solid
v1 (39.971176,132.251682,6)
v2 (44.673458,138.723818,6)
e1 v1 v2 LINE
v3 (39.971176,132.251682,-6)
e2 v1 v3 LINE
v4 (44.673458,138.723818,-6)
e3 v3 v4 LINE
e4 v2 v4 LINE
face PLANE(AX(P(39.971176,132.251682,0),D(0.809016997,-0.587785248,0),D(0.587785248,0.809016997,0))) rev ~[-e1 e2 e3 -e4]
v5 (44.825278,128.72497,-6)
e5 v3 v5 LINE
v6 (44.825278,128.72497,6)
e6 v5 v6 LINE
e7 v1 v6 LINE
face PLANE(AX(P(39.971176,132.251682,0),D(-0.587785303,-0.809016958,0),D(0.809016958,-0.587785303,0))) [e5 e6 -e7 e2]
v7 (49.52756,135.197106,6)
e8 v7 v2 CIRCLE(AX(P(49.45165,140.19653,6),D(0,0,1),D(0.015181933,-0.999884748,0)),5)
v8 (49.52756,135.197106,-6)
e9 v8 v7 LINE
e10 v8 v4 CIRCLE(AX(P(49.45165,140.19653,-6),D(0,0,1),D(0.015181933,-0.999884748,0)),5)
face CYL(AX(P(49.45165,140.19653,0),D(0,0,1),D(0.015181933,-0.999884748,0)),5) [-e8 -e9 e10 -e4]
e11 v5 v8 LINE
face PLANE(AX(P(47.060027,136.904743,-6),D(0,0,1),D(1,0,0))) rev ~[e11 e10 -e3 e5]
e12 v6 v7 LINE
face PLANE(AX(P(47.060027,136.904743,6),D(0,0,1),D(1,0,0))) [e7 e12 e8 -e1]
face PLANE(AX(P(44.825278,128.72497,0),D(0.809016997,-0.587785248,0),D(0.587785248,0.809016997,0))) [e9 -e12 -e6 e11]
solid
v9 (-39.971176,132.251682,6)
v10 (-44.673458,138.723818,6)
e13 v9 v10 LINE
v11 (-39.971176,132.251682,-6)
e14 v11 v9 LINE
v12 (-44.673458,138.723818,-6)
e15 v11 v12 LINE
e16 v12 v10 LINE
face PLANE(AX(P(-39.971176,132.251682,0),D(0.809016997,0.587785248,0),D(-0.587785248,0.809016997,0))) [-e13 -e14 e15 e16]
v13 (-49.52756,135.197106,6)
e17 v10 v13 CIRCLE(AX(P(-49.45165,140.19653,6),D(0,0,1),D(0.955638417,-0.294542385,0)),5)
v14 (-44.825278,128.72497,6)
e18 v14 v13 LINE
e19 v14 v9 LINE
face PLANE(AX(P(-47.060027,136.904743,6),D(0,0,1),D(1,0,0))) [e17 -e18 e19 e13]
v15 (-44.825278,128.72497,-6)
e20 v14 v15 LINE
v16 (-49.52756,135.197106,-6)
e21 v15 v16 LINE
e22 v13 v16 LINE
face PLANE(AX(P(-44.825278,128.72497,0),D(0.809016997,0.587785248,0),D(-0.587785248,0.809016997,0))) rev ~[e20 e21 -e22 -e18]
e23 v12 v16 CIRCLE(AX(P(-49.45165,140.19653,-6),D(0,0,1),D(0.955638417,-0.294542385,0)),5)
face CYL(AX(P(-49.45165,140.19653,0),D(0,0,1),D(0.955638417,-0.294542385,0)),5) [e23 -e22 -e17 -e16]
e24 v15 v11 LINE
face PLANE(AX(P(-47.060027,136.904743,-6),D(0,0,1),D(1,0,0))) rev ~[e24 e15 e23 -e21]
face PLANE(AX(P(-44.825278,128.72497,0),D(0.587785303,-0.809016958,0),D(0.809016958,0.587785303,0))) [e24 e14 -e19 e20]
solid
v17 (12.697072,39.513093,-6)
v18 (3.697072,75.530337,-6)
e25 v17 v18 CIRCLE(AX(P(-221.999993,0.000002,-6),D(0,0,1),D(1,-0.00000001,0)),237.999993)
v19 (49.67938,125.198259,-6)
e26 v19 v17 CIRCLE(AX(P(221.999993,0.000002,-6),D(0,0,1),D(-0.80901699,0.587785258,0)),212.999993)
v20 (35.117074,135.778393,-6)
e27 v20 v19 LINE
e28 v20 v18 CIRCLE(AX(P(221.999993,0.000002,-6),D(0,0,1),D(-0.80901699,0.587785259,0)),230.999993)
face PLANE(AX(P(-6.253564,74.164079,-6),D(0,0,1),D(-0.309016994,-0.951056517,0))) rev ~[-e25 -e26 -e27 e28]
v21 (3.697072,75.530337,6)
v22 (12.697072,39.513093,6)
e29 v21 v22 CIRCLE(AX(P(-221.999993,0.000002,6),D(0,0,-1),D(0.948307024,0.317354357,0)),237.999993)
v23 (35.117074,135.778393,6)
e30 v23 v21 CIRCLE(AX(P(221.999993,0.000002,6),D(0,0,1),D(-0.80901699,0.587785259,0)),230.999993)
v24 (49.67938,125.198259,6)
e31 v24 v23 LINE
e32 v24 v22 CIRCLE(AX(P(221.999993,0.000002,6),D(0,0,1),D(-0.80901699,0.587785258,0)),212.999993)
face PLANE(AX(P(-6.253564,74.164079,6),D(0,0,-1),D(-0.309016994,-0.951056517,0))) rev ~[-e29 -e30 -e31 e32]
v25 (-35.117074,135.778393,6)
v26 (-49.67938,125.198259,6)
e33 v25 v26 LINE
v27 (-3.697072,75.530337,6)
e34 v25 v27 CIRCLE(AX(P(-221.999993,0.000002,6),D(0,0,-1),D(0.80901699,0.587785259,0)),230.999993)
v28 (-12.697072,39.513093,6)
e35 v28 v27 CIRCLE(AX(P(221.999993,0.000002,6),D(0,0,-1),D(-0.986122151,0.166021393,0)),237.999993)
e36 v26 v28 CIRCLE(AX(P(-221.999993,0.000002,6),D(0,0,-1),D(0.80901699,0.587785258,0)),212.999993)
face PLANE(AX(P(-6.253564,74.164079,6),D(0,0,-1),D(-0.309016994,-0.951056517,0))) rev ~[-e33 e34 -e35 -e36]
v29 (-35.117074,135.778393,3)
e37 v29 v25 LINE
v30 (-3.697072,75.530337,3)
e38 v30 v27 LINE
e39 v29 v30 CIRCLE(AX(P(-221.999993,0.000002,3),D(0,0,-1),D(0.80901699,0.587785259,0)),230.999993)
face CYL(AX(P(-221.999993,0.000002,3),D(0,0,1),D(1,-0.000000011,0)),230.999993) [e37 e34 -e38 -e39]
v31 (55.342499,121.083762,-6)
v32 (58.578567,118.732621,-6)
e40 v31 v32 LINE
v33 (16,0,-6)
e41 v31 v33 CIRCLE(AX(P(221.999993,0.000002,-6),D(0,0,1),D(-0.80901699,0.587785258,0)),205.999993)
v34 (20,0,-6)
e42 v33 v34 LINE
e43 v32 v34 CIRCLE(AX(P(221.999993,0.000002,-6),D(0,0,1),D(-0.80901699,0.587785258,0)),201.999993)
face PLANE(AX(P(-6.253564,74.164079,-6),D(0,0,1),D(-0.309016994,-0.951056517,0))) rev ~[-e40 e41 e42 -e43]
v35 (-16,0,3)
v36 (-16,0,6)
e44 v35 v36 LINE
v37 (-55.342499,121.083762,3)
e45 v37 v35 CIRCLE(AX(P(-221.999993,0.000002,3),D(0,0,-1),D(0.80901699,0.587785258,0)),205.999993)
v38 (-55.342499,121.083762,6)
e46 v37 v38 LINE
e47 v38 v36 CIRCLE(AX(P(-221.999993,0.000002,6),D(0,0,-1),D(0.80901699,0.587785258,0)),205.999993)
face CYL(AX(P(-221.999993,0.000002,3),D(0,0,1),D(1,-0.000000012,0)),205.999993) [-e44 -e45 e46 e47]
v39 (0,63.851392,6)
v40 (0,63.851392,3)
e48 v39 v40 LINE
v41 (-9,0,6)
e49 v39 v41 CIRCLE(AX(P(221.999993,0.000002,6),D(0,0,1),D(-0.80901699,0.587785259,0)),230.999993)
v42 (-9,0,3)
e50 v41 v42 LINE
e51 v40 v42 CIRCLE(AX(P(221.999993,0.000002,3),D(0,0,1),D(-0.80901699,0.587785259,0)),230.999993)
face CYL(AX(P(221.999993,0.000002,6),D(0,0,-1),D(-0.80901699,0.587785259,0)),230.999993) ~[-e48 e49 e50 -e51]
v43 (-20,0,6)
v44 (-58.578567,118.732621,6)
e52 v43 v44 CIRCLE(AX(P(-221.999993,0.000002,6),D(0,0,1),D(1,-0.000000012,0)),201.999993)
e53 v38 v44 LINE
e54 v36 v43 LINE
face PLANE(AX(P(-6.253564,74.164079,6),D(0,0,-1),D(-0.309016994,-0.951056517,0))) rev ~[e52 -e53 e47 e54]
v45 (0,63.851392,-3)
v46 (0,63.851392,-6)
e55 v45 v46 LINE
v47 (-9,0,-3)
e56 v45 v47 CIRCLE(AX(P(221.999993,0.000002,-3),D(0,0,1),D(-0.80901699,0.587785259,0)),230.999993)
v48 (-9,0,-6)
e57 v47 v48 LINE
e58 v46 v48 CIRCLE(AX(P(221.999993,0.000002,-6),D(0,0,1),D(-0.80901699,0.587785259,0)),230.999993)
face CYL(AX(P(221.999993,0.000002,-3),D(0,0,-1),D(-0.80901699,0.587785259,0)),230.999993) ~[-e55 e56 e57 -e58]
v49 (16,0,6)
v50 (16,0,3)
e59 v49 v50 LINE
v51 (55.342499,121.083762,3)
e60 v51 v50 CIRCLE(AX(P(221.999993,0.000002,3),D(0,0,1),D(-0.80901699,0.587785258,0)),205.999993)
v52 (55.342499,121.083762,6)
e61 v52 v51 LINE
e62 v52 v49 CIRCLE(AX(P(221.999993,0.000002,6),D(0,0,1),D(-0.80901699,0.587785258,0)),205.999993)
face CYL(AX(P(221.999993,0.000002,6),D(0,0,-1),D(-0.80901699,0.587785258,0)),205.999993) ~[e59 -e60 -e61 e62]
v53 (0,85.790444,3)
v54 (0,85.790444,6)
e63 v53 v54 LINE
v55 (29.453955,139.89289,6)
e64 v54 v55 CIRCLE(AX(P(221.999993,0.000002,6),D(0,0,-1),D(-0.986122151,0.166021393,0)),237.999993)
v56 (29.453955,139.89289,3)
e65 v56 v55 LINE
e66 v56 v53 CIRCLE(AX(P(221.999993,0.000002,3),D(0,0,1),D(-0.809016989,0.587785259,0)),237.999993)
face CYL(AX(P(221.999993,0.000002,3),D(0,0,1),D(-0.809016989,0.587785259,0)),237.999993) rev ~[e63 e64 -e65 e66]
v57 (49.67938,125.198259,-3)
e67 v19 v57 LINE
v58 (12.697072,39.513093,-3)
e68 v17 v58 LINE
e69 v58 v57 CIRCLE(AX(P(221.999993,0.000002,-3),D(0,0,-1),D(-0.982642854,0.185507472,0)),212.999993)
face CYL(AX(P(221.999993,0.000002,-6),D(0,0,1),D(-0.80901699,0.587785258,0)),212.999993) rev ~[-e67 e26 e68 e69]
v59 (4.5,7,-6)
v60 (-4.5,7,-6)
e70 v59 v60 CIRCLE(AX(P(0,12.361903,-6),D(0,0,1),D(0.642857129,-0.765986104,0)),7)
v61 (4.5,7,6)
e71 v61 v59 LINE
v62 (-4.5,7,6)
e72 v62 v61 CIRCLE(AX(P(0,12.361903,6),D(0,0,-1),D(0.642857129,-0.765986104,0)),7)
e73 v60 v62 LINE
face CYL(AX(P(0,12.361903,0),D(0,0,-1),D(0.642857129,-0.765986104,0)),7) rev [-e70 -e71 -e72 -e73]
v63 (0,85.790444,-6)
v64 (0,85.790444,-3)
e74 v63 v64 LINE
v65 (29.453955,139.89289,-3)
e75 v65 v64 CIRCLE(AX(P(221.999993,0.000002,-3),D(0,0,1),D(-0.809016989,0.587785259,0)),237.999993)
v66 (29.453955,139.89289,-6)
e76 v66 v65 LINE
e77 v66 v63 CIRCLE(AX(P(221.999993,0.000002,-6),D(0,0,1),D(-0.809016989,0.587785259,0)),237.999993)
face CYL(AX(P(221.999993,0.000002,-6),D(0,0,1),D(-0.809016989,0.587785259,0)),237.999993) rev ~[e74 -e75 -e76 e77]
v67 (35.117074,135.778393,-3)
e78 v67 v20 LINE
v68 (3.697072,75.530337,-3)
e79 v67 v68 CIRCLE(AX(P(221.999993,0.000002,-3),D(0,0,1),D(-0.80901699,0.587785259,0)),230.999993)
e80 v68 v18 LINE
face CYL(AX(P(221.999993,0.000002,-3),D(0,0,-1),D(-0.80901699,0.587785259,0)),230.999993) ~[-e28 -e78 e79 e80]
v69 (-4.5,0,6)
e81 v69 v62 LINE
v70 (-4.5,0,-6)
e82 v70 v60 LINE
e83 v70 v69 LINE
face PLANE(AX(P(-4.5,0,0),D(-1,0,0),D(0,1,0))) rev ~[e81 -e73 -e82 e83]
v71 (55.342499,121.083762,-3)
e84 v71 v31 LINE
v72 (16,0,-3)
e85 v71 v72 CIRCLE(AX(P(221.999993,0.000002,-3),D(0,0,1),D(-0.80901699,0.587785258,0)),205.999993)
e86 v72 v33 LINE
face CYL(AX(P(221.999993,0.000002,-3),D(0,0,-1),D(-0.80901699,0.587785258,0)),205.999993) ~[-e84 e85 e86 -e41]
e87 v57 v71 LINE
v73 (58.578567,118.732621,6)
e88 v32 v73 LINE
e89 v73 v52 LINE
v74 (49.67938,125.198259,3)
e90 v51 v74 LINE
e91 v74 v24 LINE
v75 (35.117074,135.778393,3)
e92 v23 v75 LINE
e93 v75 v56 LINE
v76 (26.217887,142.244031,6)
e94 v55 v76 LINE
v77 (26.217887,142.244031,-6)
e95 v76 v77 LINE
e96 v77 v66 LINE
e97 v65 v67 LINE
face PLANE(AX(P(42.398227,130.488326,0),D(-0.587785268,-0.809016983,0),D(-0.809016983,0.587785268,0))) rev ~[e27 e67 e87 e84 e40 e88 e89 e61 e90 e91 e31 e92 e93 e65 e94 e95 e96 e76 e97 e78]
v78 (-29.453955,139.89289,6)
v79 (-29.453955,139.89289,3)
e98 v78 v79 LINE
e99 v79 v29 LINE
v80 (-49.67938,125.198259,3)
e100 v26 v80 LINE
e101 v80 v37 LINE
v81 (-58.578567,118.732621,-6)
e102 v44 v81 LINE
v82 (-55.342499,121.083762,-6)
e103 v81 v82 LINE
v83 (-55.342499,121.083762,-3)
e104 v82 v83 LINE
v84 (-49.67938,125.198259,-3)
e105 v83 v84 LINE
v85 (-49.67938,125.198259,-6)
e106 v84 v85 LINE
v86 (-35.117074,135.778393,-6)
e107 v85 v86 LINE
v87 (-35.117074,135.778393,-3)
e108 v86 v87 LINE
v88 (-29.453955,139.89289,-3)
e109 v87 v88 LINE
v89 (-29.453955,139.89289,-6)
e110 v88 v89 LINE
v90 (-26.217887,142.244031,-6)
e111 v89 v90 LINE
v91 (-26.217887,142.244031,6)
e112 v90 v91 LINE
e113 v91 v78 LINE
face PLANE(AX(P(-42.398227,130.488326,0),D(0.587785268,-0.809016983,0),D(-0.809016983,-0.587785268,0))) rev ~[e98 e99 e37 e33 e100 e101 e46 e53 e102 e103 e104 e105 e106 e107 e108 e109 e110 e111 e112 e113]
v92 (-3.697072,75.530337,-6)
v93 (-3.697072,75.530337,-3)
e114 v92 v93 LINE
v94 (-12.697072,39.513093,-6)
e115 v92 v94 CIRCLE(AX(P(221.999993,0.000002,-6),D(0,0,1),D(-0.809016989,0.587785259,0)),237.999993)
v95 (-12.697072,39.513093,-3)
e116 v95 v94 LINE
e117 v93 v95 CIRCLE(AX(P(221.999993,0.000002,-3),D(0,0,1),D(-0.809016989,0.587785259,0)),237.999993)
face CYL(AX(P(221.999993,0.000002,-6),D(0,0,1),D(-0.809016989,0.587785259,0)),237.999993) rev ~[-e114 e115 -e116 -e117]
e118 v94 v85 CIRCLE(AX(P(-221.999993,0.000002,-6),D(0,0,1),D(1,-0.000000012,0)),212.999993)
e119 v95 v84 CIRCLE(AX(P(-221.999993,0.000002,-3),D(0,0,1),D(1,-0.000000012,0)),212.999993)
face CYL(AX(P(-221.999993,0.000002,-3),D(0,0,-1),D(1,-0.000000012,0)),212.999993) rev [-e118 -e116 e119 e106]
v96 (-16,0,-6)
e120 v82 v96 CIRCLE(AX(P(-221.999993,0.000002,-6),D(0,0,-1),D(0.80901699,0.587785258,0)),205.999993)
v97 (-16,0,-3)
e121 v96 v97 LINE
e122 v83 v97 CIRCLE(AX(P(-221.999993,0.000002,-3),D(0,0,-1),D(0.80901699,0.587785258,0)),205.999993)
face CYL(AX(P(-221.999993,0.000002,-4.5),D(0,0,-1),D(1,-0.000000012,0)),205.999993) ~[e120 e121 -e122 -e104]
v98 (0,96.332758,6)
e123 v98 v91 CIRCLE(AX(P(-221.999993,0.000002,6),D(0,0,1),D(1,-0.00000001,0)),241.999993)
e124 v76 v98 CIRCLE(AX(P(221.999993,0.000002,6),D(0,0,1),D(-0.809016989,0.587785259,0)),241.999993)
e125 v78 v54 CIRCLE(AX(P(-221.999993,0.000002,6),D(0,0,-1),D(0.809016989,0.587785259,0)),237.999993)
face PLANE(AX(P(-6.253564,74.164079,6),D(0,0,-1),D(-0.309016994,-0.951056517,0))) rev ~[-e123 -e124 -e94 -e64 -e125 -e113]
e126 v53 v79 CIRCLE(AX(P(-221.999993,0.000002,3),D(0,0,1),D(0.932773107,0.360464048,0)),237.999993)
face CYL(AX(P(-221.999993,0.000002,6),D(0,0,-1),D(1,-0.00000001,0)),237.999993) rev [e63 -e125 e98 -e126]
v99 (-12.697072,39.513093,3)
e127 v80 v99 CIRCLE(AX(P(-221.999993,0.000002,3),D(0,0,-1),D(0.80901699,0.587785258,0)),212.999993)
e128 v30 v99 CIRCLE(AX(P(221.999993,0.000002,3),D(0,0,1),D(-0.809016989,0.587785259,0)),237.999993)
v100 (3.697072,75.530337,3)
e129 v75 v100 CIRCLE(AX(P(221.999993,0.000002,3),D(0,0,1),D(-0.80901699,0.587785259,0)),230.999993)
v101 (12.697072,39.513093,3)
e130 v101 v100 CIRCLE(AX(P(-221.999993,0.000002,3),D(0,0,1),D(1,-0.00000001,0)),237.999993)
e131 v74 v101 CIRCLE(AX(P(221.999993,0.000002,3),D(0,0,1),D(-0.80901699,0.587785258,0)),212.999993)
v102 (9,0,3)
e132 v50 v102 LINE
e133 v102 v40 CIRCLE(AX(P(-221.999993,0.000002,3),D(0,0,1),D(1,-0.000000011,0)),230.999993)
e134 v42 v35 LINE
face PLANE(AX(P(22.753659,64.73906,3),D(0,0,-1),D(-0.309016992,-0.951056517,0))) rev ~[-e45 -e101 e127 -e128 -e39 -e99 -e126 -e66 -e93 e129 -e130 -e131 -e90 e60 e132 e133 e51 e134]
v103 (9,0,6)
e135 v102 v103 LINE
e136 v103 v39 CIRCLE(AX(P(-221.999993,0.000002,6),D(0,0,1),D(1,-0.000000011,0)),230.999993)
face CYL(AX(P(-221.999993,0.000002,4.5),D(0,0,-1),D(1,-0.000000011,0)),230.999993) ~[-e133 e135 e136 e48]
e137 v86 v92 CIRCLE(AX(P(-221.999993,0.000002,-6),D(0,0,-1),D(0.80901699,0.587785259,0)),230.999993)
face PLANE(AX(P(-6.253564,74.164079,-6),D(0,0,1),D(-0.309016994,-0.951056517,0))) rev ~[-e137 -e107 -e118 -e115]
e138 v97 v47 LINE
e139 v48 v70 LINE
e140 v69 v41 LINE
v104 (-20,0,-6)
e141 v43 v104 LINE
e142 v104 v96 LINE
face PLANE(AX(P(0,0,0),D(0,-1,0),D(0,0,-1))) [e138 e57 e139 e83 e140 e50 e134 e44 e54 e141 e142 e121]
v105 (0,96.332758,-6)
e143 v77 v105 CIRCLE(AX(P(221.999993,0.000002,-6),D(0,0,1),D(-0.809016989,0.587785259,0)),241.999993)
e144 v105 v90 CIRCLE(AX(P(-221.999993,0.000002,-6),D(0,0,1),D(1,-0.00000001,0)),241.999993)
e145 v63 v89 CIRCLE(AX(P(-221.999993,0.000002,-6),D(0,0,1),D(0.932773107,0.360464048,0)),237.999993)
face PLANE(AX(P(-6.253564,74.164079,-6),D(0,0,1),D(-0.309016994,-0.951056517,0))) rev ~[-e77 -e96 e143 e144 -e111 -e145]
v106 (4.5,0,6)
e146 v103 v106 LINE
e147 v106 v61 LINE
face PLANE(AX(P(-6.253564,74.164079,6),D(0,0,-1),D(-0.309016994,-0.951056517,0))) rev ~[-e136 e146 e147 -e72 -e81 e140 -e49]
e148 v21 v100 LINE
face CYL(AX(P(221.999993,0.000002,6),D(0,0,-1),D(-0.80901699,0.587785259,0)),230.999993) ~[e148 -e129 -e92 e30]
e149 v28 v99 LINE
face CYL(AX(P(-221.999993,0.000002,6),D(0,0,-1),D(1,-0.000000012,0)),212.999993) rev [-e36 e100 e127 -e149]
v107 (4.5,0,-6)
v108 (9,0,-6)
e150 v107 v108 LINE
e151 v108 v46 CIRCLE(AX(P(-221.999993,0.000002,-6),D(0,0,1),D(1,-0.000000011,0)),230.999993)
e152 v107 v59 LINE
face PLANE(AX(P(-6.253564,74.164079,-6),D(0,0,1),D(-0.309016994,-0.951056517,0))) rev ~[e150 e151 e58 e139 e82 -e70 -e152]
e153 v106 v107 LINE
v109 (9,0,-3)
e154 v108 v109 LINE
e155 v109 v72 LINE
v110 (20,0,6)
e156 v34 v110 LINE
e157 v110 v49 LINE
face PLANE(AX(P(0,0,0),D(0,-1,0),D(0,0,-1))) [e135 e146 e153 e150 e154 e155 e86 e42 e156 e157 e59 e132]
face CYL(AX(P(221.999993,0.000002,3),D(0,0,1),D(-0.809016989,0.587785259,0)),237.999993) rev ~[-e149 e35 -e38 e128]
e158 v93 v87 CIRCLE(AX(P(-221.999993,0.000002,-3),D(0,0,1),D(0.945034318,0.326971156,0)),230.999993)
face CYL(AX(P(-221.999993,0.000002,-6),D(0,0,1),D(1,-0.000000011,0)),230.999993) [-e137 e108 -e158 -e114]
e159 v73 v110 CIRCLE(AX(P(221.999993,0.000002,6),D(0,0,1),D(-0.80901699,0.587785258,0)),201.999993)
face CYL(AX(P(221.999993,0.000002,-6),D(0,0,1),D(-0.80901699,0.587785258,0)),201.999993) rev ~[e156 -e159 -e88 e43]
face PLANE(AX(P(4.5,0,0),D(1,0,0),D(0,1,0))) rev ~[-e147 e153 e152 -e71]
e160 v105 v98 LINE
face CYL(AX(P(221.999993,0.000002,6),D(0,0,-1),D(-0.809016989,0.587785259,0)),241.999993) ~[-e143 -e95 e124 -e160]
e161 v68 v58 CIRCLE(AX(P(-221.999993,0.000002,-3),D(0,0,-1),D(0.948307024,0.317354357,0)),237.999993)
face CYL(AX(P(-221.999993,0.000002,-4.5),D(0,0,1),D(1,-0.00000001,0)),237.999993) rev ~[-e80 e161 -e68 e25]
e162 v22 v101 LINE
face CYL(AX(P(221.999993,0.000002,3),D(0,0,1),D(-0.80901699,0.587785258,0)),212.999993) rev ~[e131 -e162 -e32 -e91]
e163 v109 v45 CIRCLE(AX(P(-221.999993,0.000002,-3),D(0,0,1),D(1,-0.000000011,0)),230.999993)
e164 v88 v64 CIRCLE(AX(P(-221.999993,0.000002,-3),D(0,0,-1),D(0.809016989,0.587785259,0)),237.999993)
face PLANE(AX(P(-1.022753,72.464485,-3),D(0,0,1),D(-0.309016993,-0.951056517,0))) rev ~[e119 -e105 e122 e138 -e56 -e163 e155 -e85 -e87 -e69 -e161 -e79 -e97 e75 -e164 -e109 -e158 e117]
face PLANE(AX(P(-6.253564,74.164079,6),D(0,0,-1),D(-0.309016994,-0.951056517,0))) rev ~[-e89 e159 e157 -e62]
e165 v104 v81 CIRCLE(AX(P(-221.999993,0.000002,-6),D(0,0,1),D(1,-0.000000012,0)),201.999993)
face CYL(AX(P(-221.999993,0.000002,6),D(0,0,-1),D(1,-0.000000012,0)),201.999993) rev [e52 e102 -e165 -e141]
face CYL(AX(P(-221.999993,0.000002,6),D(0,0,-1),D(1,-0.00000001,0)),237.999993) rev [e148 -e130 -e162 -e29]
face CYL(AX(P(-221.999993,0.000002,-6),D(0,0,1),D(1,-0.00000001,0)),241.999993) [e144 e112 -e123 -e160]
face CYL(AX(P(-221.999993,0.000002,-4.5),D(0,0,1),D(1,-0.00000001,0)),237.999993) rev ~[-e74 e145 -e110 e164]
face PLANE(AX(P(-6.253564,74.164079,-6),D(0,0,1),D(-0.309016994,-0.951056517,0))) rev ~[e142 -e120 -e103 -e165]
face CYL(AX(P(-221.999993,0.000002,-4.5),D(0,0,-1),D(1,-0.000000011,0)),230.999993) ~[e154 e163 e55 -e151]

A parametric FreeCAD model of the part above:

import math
import FreeCAD as App
import Part
import Sketcher
from FreeCAD import Vector
Q = App.Units.Quantity


def add_polygon(sketch, points):
    """Adds a closed chain of lines whose ends are joined by coincident constraints."""
    first, n = sketch.GeometryCount, len(points)
    for a, b in zip(points, points[1:] + points[:1]):
        sketch.addGeometry(Part.LineSegment(App.Vector(*a, 0), App.Vector(*b, 0)), False)
    for i in range(n):
        sketch.addConstraint(Sketcher.Constraint("Coincident", first + i, 2, first + (i + 1) % n, 1))

doc = App.newDocument("Part")
body = doc.addObject("PartDesign::Body", "Body")

# Sketch on XZ plane
sketch1 = body.newObject("Sketcher::SketchObject", "Sketch")
sketch1.AttachmentSupport = (doc.getObject("XZ_Plane"), [""])
sketch1.MapMode = "FlatFace"
add_polygon(sketch1, [(-20, 6), (-20, -6), (-16, -6), (-16, -3), (-9, -3), (-9, -6), (9, -6), (9, -3), (16, -3), (16, -6), (20, -6), (20, 6), (16, 6), (16, 3), (9, 3), (9, 6), (-9, 6), (-9, 3), (-16, 3), (-16, 6)])  # lines 0-19
sketch1.addConstraint([
    Sketcher.Constraint("Vertical", 0),
    Sketcher.Constraint("Horizontal", 1),
    Sketcher.Constraint("Vertical", 2),
    Sketcher.Constraint("Horizontal", 3),
    Sketcher.Constraint("Vertical", 4),
    Sketcher.Constraint("Horizontal", 5),
    Sketcher.Constraint("Vertical", 6),
    Sketcher.Constraint("Horizontal", 7),
    Sketcher.Constraint("Vertical", 8),
    Sketcher.Constraint("Horizontal", 9),
    Sketcher.Constraint("Vertical", 10),
    Sketcher.Constraint("Horizontal", 11),
    Sketcher.Constraint("Vertical", 12),
    Sketcher.Constraint("Horizontal", 13),
    Sketcher.Constraint("Vertical", 14),
    Sketcher.Constraint("Horizontal", 15),
    Sketcher.Constraint("Vertical", 16),
    Sketcher.Constraint("Horizontal", 17),
    Sketcher.Constraint("Vertical", 18),
    Sketcher.Constraint("Horizontal", 19),
    Sketcher.Constraint("Symmetric", 0, 2, 10, 2, -1, 1),
    Sketcher.Constraint("Symmetric", 2, 2, 12, 2, -1, 1),
    Sketcher.Constraint("Symmetric", 4, 2, 14, 2, -1, 1),
    Sketcher.Constraint("Symmetric", 6, 2, 16, 2, -1, 1),
    Sketcher.Constraint("Symmetric", 8, 2, 18, 2, -1, 1),
    Sketcher.Constraint("Symmetric", 3, 2, 6, 2, -2),
    Sketcher.Constraint("Symmetric", 1, 2, 8, 2, -2),
    Sketcher.Constraint("Horizontal", 1, 2, 4, 2),
    Sketcher.Constraint("DistanceX", 1, 1, 1, 2, Q("4 mm")),
    Sketcher.Constraint("DistanceX", 3, 1, 3, 2, Q("7 mm")),
    Sketcher.Constraint("DistanceX", 5, 1, 5, 2, Q("18 mm")),
    Sketcher.Constraint("DistanceY", 0, 2, 0, 1, Q("12 mm")),
    Sketcher.Constraint("DistanceY", 2, 1, 2, 2, Q("3 mm")),
])

# Sketch on XY plane
sketch2 = body.newObject("Sketcher::SketchObject", "Sketch001")
sketch2.AttachmentSupport = (doc.getObject("XY_Plane"), [""])
sketch2.MapMode = "FlatFace"
sketch2.addGeometry(Part.ArcOfCircle(Part.Circle(Vector(-221.999993, 0.000002, 0), Vector(0, 0, 1), 221.999993), math.radians(-0.000001), math.radians(36)), False)
sketch2.addConstraint([
    Sketcher.Constraint("Coincident", 0, 1, -1, 1),
    Sketcher.Constraint("Radius", 0, Q("221.999993 mm")),
    Sketcher.Constraint("DistanceX", 0, 2, -1, 1, Q("42.398227 mm")),
    Sketcher.Constraint("DistanceY", -1, 1, 0, 2, Q("130.488326 mm")),
])
doc.recompute()

additivepipe = body.newObject("PartDesign::AdditivePipe", "AdditivePipe")
additivepipe.Profile = sketch1
additivepipe.Spine = (sketch2, ["Edge1"])

# Sketch on XZ plane
sketch3 = body.newObject("Sketcher::SketchObject", "Sketch002")
sketch3.AttachmentSupport = (doc.getObject("XZ_Plane"), [""])
sketch3.MapMode = "FlatFace"
add_polygon(sketch3, [(-20, 6), (-20, -6), (-16, -6), (-16, -3), (-9, -3), (-9, -6), (9, -6), (9, -3), (16, -3), (16, -6), (20, -6), (20, 6), (16, 6), (16, 3), (9, 3), (9, 6), (-9, 6), (-9, 3), (-16, 3), (-16, 6)])  # lines 0-19
sketch3.addConstraint([
    Sketcher.Constraint("Vertical", 0),
    Sketcher.Constraint("Horizontal", 1),
    Sketcher.Constraint("Vertical", 2),
    Sketcher.Constraint("Horizontal", 3),
    Sketcher.Constraint("Vertical", 4),
    Sketcher.Constraint("Horizontal", 5),
    Sketcher.Constraint("Vertical", 6),
    Sketcher.Constraint("Horizontal", 7),
    Sketcher.Constraint("Vertical", 8),
    Sketcher.Constraint("Horizontal", 9),
    Sketcher.Constraint("Vertical", 10),
    Sketcher.Constraint("Horizontal", 11),
    Sketcher.Constraint("Vertical", 12),
    Sketcher.Constraint("Horizontal", 13),
    Sketcher.Constraint("Vertical", 14),
    Sketcher.Constraint("Horizontal", 15),
    Sketcher.Constraint("Vertical", 16),
    Sketcher.Constraint("Horizontal", 17),
    Sketcher.Constraint("Vertical", 18),
    Sketcher.Constraint("Horizontal", 19),
    Sketcher.Constraint("Symmetric", 0, 2, 10, 2, -1, 1),
    Sketcher.Constraint("Symmetric", 2, 2, 12, 2, -1, 1),
    Sketcher.Constraint("Symmetric", 4, 2, 14, 2, -1, 1),
    Sketcher.Constraint("Symmetric", 6, 2, 16, 2, -1, 1),
    Sketcher.Constraint("Symmetric", 8, 2, 18, 2, -1, 1),
    Sketcher.Constraint("Symmetric", 3, 2, 6, 2, -2),
    Sketcher.Constraint("Symmetric", 1, 2, 8, 2, -2),
    Sketcher.Constraint("Horizontal", 1, 2, 4, 2),
    Sketcher.Constraint("DistanceX", 1, 1, 1, 2, Q("4 mm")),
    Sketcher.Constraint("DistanceX", 3, 1, 3, 2, Q("7 mm")),
    Sketcher.Constraint("DistanceX", 5, 1, 5, 2, Q("18 mm")),
    Sketcher.Constraint("DistanceY", 0, 2, 0, 1, Q("12 mm")),
    Sketcher.Constraint("DistanceY", 2, 1, 2, 2, Q("3 mm")),
])

# Sketch on XY plane
sketch4 = body.newObject("Sketcher::SketchObject", "Sketch003")
sketch4.AttachmentSupport = (doc.getObject("XY_Plane"), [""])
sketch4.MapMode = "FlatFace"
sketch4.addGeometry(Part.ArcOfCircle(Part.Circle(Vector(221.999993, 0.000002, 0), Vector(0, 0, 1), 221.999993), math.radians(144), math.radians(180.000001)), False)
sketch4.addConstraint([
    Sketcher.Constraint("Coincident", 0, 2, -1, 1),
    Sketcher.Constraint("Radius", 0, Q("221.999993 mm")),
    Sketcher.Constraint("DistanceX", -1, 1, 0, 1, Q("42.398227 mm")),
    Sketcher.Constraint("DistanceY", -1, 1, 0, 1, Q("130.488326 mm")),
])
doc.recompute()

additivepipe2 = body.newObject("PartDesign::AdditivePipe", "AdditivePipe001")
additivepipe2.Profile = sketch3
additivepipe2.Spine = (sketch4, ["Edge1"])

# Sketch on XZ plane
sketch5 = body.newObject("Sketcher::SketchObject", "Sketch004")
sketch5.AttachmentSupport = (doc.getObject("XZ_Plane"), [""])
sketch5.MapMode = "FlatFace"
add_polygon(sketch5, [(-16, 6), (-16, 3), (-9, 3), (-9, 6)])  # lines 0-3
sketch5.addConstraint([
    Sketcher.Constraint("Vertical", 0),
    Sketcher.Constraint("Horizontal", 1),
    Sketcher.Constraint("Vertical", 2),
    Sketcher.Constraint("Horizontal", 3),
    Sketcher.Constraint("DistanceX", 1, 1, 1, 2, Q("7 mm")),
    Sketcher.Constraint("DistanceY", 0, 2, 0, 1, Q("3 mm")),
    Sketcher.Constraint("DistanceX", 0, 2, -1, 1, Q("16 mm")),
    Sketcher.Constraint("DistanceY", -1, 1, 0, 2, Q("3 mm")),
])

# Sketch on XY plane
sketch6 = body.newObject("Sketcher::SketchObject", "Sketch005")
sketch6.AttachmentSupport = (doc.getObject("XY_Plane"), [""])
sketch6.MapMode = "FlatFace"
sketch6.addGeometry(Part.ArcOfCircle(Part.Circle(Vector(-221.999993, 0.000002, 0), Vector(0, 0, 1), 221.999993), math.radians(-0.000001), math.radians(36)), False)
sketch6.addConstraint([
    Sketcher.Constraint("Coincident", 0, 1, -1, 1),
    Sketcher.Constraint("Radius", 0, Q("221.999993 mm")),
    Sketcher.Constraint("DistanceX", 0, 2, -1, 1, Q("42.398227 mm")),
    Sketcher.Constraint("DistanceY", -1, 1, 0, 2, Q("130.488326 mm")),
])
doc.recompute()

subtractivepipe = body.newObject("PartDesign::SubtractivePipe", "SubtractivePipe")
subtractivepipe.Profile = sketch5
subtractivepipe.Spine = (sketch6, ["Edge1"])

# Sketch on XZ plane
sketch7 = body.newObject("Sketcher::SketchObject", "Sketch006")
sketch7.AttachmentSupport = (doc.getObject("XZ_Plane"), [""])
sketch7.MapMode = "FlatFace"
add_polygon(sketch7, [(-16, 6), (-16, 3), (-9, 3), (-9, 6)])  # lines 0-3
sketch7.addConstraint([
    Sketcher.Constraint("Vertical", 0),
    Sketcher.Constraint("Horizontal", 1),
    Sketcher.Constraint("Vertical", 2),
    Sketcher.Constraint("Horizontal", 3),
    Sketcher.Constraint("DistanceX", 1, 1, 1, 2, Q("7 mm")),
    Sketcher.Constraint("DistanceY", 0, 2, 0, 1, Q("3 mm")),
    Sketcher.Constraint("DistanceX", 0, 2, -1, 1, Q("16 mm")),
    Sketcher.Constraint("DistanceY", -1, 1, 0, 2, Q("3 mm")),
])

# Sketch on XY plane
sketch8 = body.newObject("Sketcher::SketchObject", "Sketch007")
sketch8.AttachmentSupport = (doc.getObject("XY_Plane"), [""])
sketch8.MapMode = "FlatFace"
sketch8.addGeometry(Part.ArcOfCircle(Part.Circle(Vector(221.999993, 0.000002, 0), Vector(0, 0, 1), 221.999993), math.radians(144), math.radians(180.000001)), False)
sketch8.addConstraint([
    Sketcher.Constraint("Coincident", 0, 2, -1, 1),
    Sketcher.Constraint("Radius", 0, Q("221.999993 mm")),
    Sketcher.Constraint("DistanceX", -1, 1, 0, 1, Q("42.398227 mm")),
    Sketcher.Constraint("DistanceY", -1, 1, 0, 1, Q("130.488326 mm")),
])
doc.recompute()

subtractivepipe2 = body.newObject("PartDesign::SubtractivePipe", "SubtractivePipe001")
subtractivepipe2.Profile = sketch7
subtractivepipe2.Spine = (sketch8, ["Edge1"])

# Sketch on XZ plane
sketch9 = body.newObject("Sketcher::SketchObject", "Sketch008")
sketch9.AttachmentSupport = (doc.getObject("XZ_Plane"), [""])
sketch9.MapMode = "FlatFace"
add_polygon(sketch9, [(9, 6), (9, 3), (16, 3), (16, 6)])  # lines 0-3
sketch9.addConstraint([
    Sketcher.Constraint("Vertical", 0),
    Sketcher.Constraint("Horizontal", 1),
    Sketcher.Constraint("Vertical", 2),
    Sketcher.Constraint("Horizontal", 3),
    Sketcher.Constraint("DistanceX", 1, 1, 1, 2, Q("7 mm")),
    Sketcher.Constraint("DistanceY", 0, 2, 0, 1, Q("3 mm")),
    Sketcher.Constraint("DistanceX", -1, 1, 0, 2, Q("9 mm")),
    Sketcher.Constraint("DistanceY", -1, 1, 0, 2, Q("3 mm")),
])

# Sketch on XY plane
sketch10 = body.newObject("Sketcher::SketchObject", "Sketch009")
sketch10.AttachmentSupport = (doc.getObject("XY_Plane"), [""])
sketch10.MapMode = "FlatFace"
sketch10.addGeometry(Part.ArcOfCircle(Part.Circle(Vector(-221.999993, 0.000002, 0), Vector(0, 0, 1), 221.999993), math.radians(-0.000001), math.radians(36)), False)
sketch10.addConstraint([
    Sketcher.Constraint("Coincident", 0, 1, -1, 1),
    Sketcher.Constraint("Radius", 0, Q("221.999993 mm")),
    Sketcher.Constraint("DistanceX", 0, 2, -1, 1, Q("42.398227 mm")),
    Sketcher.Constraint("DistanceY", -1, 1, 0, 2, Q("130.488326 mm")),
])
doc.recompute()

subtractivepipe3 = body.newObject("PartDesign::SubtractivePipe", "SubtractivePipe002")
subtractivepipe3.Profile = sketch9
subtractivepipe3.Spine = (sketch10, ["Edge1"])

# Sketch on XZ plane
sketch11 = body.newObject("Sketcher::SketchObject", "Sketch010")
sketch11.AttachmentSupport = (doc.getObject("XZ_Plane"), [""])
sketch11.MapMode = "FlatFace"
add_polygon(sketch11, [(9, 6), (9, 3), (16, 3), (16, 6)])  # lines 0-3
sketch11.addConstraint([
    Sketcher.Constraint("Vertical", 0),
    Sketcher.Constraint("Horizontal", 1),
    Sketcher.Constraint("Vertical", 2),
    Sketcher.Constraint("Horizontal", 3),
    Sketcher.Constraint("DistanceX", 1, 1, 1, 2, Q("7 mm")),
    Sketcher.Constraint("DistanceY", 0, 2, 0, 1, Q("3 mm")),
    Sketcher.Constraint("DistanceX", -1, 1, 0, 2, Q("9 mm")),
    Sketcher.Constraint("DistanceY", -1, 1, 0, 2, Q("3 mm")),
])

# Sketch on XY plane
sketch12 = body.newObject("Sketcher::SketchObject", "Sketch011")
sketch12.AttachmentSupport = (doc.getObject("XY_Plane"), [""])
sketch12.MapMode = "FlatFace"
sketch12.addGeometry(Part.ArcOfCircle(Part.Circle(Vector(221.999993, 0.000002, 0), Vector(0, 0, 1), 221.999993), math.radians(144), math.radians(180.000001)), False)
sketch12.addConstraint([
    Sketcher.Constraint("Coincident", 0, 2, -1, 1),
    Sketcher.Constraint("Radius", 0, Q("221.999993 mm")),
    Sketcher.Constraint("DistanceX", -1, 1, 0, 1, Q("42.398227 mm")),
    Sketcher.Constraint("DistanceY", -1, 1, 0, 1, Q("130.488326 mm")),
])
doc.recompute()

subtractivepipe4 = body.newObject("PartDesign::SubtractivePipe", "SubtractivePipe003")
subtractivepipe4.Profile = sketch11
subtractivepipe4.Spine = (sketch12, ["Edge1"])

# Sketch on XZ plane
sketch13 = body.newObject("Sketcher::SketchObject", "Sketch012")
sketch13.AttachmentSupport = (doc.getObject("XZ_Plane"), [""])
sketch13.MapMode = "FlatFace"
add_polygon(sketch13, [(-16, -3), (-16, -6), (-9, -6), (-9, -3)])  # lines 0-3
sketch13.addConstraint([
    Sketcher.Constraint("Vertical", 0),
    Sketcher.Constraint("Horizontal", 1),
    Sketcher.Constraint("Vertical", 2),
    Sketcher.Constraint("Horizontal", 3),
    Sketcher.Constraint("DistanceX", 1, 1, 1, 2, Q("7 mm")),
    Sketcher.Constraint("DistanceY", 0, 2, 0, 1, Q("3 mm")),
    Sketcher.Constraint("DistanceX", 0, 2, -1, 1, Q("16 mm")),
    Sketcher.Constraint("DistanceY", 0, 2, -1, 1, Q("6 mm")),
])

# Sketch on XY plane
sketch14 = body.newObject("Sketcher::SketchObject", "Sketch013")
sketch14.AttachmentSupport = (doc.getObject("XY_Plane"), [""])
sketch14.MapMode = "FlatFace"
sketch14.addGeometry(Part.ArcOfCircle(Part.Circle(Vector(-221.999993, 0.000002, 0), Vector(0, 0, 1), 221.999993), math.radians(-0.000001), math.radians(36)), False)
sketch14.addConstraint([
    Sketcher.Constraint("Coincident", 0, 1, -1, 1),
    Sketcher.Constraint("Radius", 0, Q("221.999993 mm")),
    Sketcher.Constraint("DistanceX", 0, 2, -1, 1, Q("42.398227 mm")),
    Sketcher.Constraint("DistanceY", -1, 1, 0, 2, Q("130.488326 mm")),
])
doc.recompute()

subtractivepipe5 = body.newObject("PartDesign::SubtractivePipe", "SubtractivePipe004")
subtractivepipe5.Profile = sketch13
subtractivepipe5.Spine = (sketch14, ["Edge1"])

# Sketch on XZ plane
sketch15 = body.newObject("Sketcher::SketchObject", "Sketch014")
sketch15.AttachmentSupport = (doc.getObject("XZ_Plane"), [""])
sketch15.MapMode = "FlatFace"
add_polygon(sketch15, [(-16, -3), (-16, -6), (-9, -6), (-9, -3)])  # lines 0-3
sketch15.addConstraint([
    Sketcher.Constraint("Vertical", 0),
    Sketcher.Constraint("Horizontal", 1),
    Sketcher.Constraint("Vertical", 2),
    Sketcher.Constraint("Horizontal", 3),
    Sketcher.Constraint("DistanceX", 1, 1, 1, 2, Q("7 mm")),
    Sketcher.Constraint("DistanceY", 0, 2, 0, 1, Q("3 mm")),
    Sketcher.Constraint("DistanceX", 0, 2, -1, 1, Q("16 mm")),
    Sketcher.Constraint("DistanceY", 0, 2, -1, 1, Q("6 mm")),
])

# Sketch on XY plane
sketch16 = body.newObject("Sketcher::SketchObject", "Sketch015")
sketch16.AttachmentSupport = (doc.getObject("XY_Plane"), [""])
sketch16.MapMode = "FlatFace"
sketch16.addGeometry(Part.ArcOfCircle(Part.Circle(Vector(221.999993, 0.000002, 0), Vector(0, 0, 1), 221.999993), math.radians(144), math.radians(180.000001)), False)
sketch16.addConstraint([
    Sketcher.Constraint("Coincident", 0, 2, -1, 1),
    Sketcher.Constraint("Radius", 0, Q("221.999993 mm")),
    Sketcher.Constraint("DistanceX", -1, 1, 0, 1, Q("42.398227 mm")),
    Sketcher.Constraint("DistanceY", -1, 1, 0, 1, Q("130.488326 mm")),
])
doc.recompute()

subtractivepipe6 = body.newObject("PartDesign::SubtractivePipe", "SubtractivePipe005")
subtractivepipe6.Profile = sketch15
subtractivepipe6.Spine = (sketch16, ["Edge1"])

# Sketch on XZ plane
sketch17 = body.newObject("Sketcher::SketchObject", "Sketch016")
sketch17.AttachmentSupport = (doc.getObject("XZ_Plane"), [""])
sketch17.MapMode = "FlatFace"
add_polygon(sketch17, [(9, -3), (9, -6), (16, -6), (16, -3)])  # lines 0-3
sketch17.addConstraint([
    Sketcher.Constraint("Vertical", 0),
    Sketcher.Constraint("Horizontal", 1),
    Sketcher.Constraint("Vertical", 2),
    Sketcher.Constraint("Horizontal", 3),
    Sketcher.Constraint("DistanceX", 1, 1, 1, 2, Q("7 mm")),
    Sketcher.Constraint("DistanceY", 0, 2, 0, 1, Q("3 mm")),
    Sketcher.Constraint("DistanceX", -1, 1, 0, 2, Q("9 mm")),
    Sketcher.Constraint("DistanceY", 0, 2, -1, 1, Q("6 mm")),
])

# Sketch on XY plane
sketch18 = body.newObject("Sketcher::SketchObject", "Sketch017")
sketch18.AttachmentSupport = (doc.getObject("XY_Plane"), [""])
sketch18.MapMode = "FlatFace"
sketch18.addGeometry(Part.ArcOfCircle(Part.Circle(Vector(-221.999993, 0.000002, 0), Vector(0, 0, 1), 221.999993), math.radians(-0.000001), math.radians(36)), False)
sketch18.addConstraint([
    Sketcher.Constraint("Coincident", 0, 1, -1, 1),
    Sketcher.Constraint("Radius", 0, Q("221.999993 mm")),
    Sketcher.Constraint("DistanceX", 0, 2, -1, 1, Q("42.398227 mm")),
    Sketcher.Constraint("DistanceY", -1, 1, 0, 2, Q("130.488326 mm")),
])
doc.recompute()

subtractivepipe7 = body.newObject("PartDesign::SubtractivePipe", "SubtractivePipe006")
subtractivepipe7.Profile = sketch17
subtractivepipe7.Spine = (sketch18, ["Edge1"])

# Sketch on XZ plane
sketch19 = body.newObject("Sketcher::SketchObject", "Sketch018")
sketch19.AttachmentSupport = (doc.getObject("XZ_Plane"), [""])
sketch19.MapMode = "FlatFace"
add_polygon(sketch19, [(9, -3), (9, -6), (16, -6), (16, -3)])  # lines 0-3
sketch19.addConstraint([
    Sketcher.Constraint("Vertical", 0),
    Sketcher.Constraint("Horizontal", 1),
    Sketcher.Constraint("Vertical", 2),
    Sketcher.Constraint("Horizontal", 3),
    Sketcher.Constraint("DistanceX", 1, 1, 1, 2, Q("7 mm")),
    Sketcher.Constraint("DistanceY", 0, 2, 0, 1, Q("3 mm")),
    Sketcher.Constraint("DistanceX", -1, 1, 0, 2, Q("9 mm")),
    Sketcher.Constraint("DistanceY", 0, 2, -1, 1, Q("6 mm")),
])

# Sketch on XY plane
sketch20 = body.newObject("Sketcher::SketchObject", "Sketch019")
sketch20.AttachmentSupport = (doc.getObject("XY_Plane"), [""])
sketch20.MapMode = "FlatFace"
sketch20.addGeometry(Part.ArcOfCircle(Part.Circle(Vector(221.999993, 0.000002, 0), Vector(0, 0, 1), 221.999993), math.radians(144), math.radians(180.000001)), False)
sketch20.addConstraint([
    Sketcher.Constraint("Coincident", 0, 2, -1, 1),
    Sketcher.Constraint("Radius", 0, Q("221.999993 mm")),
    Sketcher.Constraint("DistanceX", -1, 1, 0, 1, Q("42.398227 mm")),
    Sketcher.Constraint("DistanceY", -1, 1, 0, 1, Q("130.488326 mm")),
])
doc.recompute()

subtractivepipe8 = body.newObject("PartDesign::SubtractivePipe", "SubtractivePipe007")
subtractivepipe8.Profile = sketch19
subtractivepipe8.Spine = (sketch20, ["Edge1"])

# Sketch on XY plane
sketch21 = body.newObject("Sketcher::SketchObject", "Sketch020")
sketch21.AttachmentSupport = (doc.getObject("XY_Plane"), [""])
sketch21.MapMode = "FlatFace"
sketch21.addGeometry([
    Part.LineSegment(Vector(-4.5, 0, 0), Vector(4.5, 0, 0)),
    Part.LineSegment(Vector(4.5, 0, 0), Vector(4.5, 7, 0)),
    Part.ArcOfCircle(Part.Circle(Vector(0, 12.361903, 0), Vector(0, 0, 1), 7), math.radians(-49.9948), math.radians(229.9948)),
    Part.LineSegment(Vector(-4.5, 7, 0), Vector(-4.5, 0, 0)),
], False)
sketch21.addConstraint([
    Sketcher.Constraint("Coincident", 0, 2, 1, 1),
    Sketcher.Constraint("Coincident", 1, 2, 2, 1),
    Sketcher.Constraint("Coincident", 2, 2, 3, 1),
    Sketcher.Constraint("Coincident", 3, 2, 0, 1),
    Sketcher.Constraint("Horizontal", 0),
    Sketcher.Constraint("Vertical", 1),
    Sketcher.Constraint("Vertical", 3),
    Sketcher.Constraint("Symmetric", 0, 2, 3, 2, -1, 1),
    Sketcher.Constraint("PointOnObject", 2, 3, -2),
    Sketcher.Constraint("Radius", 2, Q("7 mm")),
    Sketcher.Constraint("DistanceX", 0, 1, 0, 2, Q("9 mm")),
    Sketcher.Constraint("DistanceY", 1, 1, 1, 2, Q("7 mm")),
])
pocket1 = body.newObject("PartDesign::Pocket", "Pocket")
pocket1.Profile = sketch21
pocket1.Type = "ThroughAll"
pocket1.Midplane = True
body2 = doc.addObject("PartDesign::Body", "Body001")

# Sketch on XY plane
sketch22 = body2.newObject("Sketcher::SketchObject", "Sketch021")
sketch22.AttachmentSupport = (doc.getObject("XY_Plane001"), [""])
sketch22.MapMode = "FlatFace"
sketch22.addGeometry([
    Part.LineSegment(Vector(39.971176, 132.251682, 0), Vector(44.825278, 128.72497, 0)),
    Part.LineSegment(Vector(44.825278, 128.72497, 0), Vector(49.52756, 135.197106, 0)),
    Part.ArcOfCircle(Part.Circle(Vector(49.45165, 140.19653, 0), Vector(0, 0, 1), 5), math.radians(-89.130106), math.radians(197.130099)),
    Part.LineSegment(Vector(44.673458, 138.723818, 0), Vector(39.971176, 132.251682, 0)),
], False)
sketch22.addConstraint([
    Sketcher.Constraint("Coincident", 0, 2, 1, 1),
    Sketcher.Constraint("Coincident", 1, 2, 2, 1),
    Sketcher.Constraint("Coincident", 2, 2, 3, 1),
    Sketcher.Constraint("Coincident", 3, 2, 0, 1),
    Sketcher.Constraint("Perpendicular", 0, 1),
    Sketcher.Constraint("Parallel", 1, 3),
    Sketcher.Constraint("Equal", 1, 3),
    Sketcher.Constraint("Radius", 2, Q("5 mm")),
    Sketcher.Constraint("Angle", 0, Q("-36.000004 deg")),
    Sketcher.Constraint("Distance", 0, Q("6 mm")),
    Sketcher.Constraint("Distance", 1, Q("8 mm")),
    Sketcher.Constraint("DistanceX", -1, 1, 2, 3, Q("49.45165 mm")),
    Sketcher.Constraint("DistanceY", -1, 1, 2, 3, Q("140.19653 mm")),
])
pad1 = body2.newObject("PartDesign::Pad", "Pad")
pad1.Profile = sketch22
pad1.Length = 12
pad1.Midplane = True
body3 = doc.addObject("PartDesign::Body", "Body002")

# Sketch on XY plane
sketch23 = body3.newObject("Sketcher::SketchObject", "Sketch022")
sketch23.AttachmentSupport = (doc.getObject("XY_Plane002"), [""])
sketch23.MapMode = "FlatFace"
sketch23.addGeometry([
    Part.LineSegment(Vector(-44.825278, 128.72497, 0), Vector(-39.971176, 132.251682, 0)),
    Part.LineSegment(Vector(-39.971176, 132.251682, 0), Vector(-44.673458, 138.723818, 0)),
    Part.ArcOfCircle(Part.Circle(Vector(-49.45165, 140.19653, 0), Vector(0, 0, 1), 5), math.radians(-17.130099), math.radians(269.130106)),
    Part.LineSegment(Vector(-49.52756, 135.197106, 0), Vector(-44.825278, 128.72497, 0)),
], False)
sketch23.addConstraint([
    Sketcher.Constraint("Coincident", 0, 2, 1, 1),
    Sketcher.Constraint("Coincident", 1, 2, 2, 1),
    Sketcher.Constraint("Coincident", 2, 2, 3, 1),
    Sketcher.Constraint("Coincident", 3, 2, 0, 1),
    Sketcher.Constraint("Perpendicular", 0, 1),
    Sketcher.Constraint("Parallel", 1, 3),
    Sketcher.Constraint("Equal", 1, 3),
    Sketcher.Constraint("Radius", 2, Q("5 mm")),
    Sketcher.Constraint("Angle", 0, Q("36.000004 deg")),
    Sketcher.Constraint("Distance", 0, Q("6 mm")),
    Sketcher.Constraint("Distance", 1, Q("8 mm")),
    Sketcher.Constraint("DistanceX", 2, 3, -1, 1, Q("49.45165 mm")),
    Sketcher.Constraint("DistanceY", -1, 1, 2, 3, Q("140.19653 mm")),
])
pad2 = body3.newObject("PartDesign::Pad", "Pad001")
pad2.Profile = sketch23
pad2.Length = 12
pad2.Midplane = True

doc.recompute()
